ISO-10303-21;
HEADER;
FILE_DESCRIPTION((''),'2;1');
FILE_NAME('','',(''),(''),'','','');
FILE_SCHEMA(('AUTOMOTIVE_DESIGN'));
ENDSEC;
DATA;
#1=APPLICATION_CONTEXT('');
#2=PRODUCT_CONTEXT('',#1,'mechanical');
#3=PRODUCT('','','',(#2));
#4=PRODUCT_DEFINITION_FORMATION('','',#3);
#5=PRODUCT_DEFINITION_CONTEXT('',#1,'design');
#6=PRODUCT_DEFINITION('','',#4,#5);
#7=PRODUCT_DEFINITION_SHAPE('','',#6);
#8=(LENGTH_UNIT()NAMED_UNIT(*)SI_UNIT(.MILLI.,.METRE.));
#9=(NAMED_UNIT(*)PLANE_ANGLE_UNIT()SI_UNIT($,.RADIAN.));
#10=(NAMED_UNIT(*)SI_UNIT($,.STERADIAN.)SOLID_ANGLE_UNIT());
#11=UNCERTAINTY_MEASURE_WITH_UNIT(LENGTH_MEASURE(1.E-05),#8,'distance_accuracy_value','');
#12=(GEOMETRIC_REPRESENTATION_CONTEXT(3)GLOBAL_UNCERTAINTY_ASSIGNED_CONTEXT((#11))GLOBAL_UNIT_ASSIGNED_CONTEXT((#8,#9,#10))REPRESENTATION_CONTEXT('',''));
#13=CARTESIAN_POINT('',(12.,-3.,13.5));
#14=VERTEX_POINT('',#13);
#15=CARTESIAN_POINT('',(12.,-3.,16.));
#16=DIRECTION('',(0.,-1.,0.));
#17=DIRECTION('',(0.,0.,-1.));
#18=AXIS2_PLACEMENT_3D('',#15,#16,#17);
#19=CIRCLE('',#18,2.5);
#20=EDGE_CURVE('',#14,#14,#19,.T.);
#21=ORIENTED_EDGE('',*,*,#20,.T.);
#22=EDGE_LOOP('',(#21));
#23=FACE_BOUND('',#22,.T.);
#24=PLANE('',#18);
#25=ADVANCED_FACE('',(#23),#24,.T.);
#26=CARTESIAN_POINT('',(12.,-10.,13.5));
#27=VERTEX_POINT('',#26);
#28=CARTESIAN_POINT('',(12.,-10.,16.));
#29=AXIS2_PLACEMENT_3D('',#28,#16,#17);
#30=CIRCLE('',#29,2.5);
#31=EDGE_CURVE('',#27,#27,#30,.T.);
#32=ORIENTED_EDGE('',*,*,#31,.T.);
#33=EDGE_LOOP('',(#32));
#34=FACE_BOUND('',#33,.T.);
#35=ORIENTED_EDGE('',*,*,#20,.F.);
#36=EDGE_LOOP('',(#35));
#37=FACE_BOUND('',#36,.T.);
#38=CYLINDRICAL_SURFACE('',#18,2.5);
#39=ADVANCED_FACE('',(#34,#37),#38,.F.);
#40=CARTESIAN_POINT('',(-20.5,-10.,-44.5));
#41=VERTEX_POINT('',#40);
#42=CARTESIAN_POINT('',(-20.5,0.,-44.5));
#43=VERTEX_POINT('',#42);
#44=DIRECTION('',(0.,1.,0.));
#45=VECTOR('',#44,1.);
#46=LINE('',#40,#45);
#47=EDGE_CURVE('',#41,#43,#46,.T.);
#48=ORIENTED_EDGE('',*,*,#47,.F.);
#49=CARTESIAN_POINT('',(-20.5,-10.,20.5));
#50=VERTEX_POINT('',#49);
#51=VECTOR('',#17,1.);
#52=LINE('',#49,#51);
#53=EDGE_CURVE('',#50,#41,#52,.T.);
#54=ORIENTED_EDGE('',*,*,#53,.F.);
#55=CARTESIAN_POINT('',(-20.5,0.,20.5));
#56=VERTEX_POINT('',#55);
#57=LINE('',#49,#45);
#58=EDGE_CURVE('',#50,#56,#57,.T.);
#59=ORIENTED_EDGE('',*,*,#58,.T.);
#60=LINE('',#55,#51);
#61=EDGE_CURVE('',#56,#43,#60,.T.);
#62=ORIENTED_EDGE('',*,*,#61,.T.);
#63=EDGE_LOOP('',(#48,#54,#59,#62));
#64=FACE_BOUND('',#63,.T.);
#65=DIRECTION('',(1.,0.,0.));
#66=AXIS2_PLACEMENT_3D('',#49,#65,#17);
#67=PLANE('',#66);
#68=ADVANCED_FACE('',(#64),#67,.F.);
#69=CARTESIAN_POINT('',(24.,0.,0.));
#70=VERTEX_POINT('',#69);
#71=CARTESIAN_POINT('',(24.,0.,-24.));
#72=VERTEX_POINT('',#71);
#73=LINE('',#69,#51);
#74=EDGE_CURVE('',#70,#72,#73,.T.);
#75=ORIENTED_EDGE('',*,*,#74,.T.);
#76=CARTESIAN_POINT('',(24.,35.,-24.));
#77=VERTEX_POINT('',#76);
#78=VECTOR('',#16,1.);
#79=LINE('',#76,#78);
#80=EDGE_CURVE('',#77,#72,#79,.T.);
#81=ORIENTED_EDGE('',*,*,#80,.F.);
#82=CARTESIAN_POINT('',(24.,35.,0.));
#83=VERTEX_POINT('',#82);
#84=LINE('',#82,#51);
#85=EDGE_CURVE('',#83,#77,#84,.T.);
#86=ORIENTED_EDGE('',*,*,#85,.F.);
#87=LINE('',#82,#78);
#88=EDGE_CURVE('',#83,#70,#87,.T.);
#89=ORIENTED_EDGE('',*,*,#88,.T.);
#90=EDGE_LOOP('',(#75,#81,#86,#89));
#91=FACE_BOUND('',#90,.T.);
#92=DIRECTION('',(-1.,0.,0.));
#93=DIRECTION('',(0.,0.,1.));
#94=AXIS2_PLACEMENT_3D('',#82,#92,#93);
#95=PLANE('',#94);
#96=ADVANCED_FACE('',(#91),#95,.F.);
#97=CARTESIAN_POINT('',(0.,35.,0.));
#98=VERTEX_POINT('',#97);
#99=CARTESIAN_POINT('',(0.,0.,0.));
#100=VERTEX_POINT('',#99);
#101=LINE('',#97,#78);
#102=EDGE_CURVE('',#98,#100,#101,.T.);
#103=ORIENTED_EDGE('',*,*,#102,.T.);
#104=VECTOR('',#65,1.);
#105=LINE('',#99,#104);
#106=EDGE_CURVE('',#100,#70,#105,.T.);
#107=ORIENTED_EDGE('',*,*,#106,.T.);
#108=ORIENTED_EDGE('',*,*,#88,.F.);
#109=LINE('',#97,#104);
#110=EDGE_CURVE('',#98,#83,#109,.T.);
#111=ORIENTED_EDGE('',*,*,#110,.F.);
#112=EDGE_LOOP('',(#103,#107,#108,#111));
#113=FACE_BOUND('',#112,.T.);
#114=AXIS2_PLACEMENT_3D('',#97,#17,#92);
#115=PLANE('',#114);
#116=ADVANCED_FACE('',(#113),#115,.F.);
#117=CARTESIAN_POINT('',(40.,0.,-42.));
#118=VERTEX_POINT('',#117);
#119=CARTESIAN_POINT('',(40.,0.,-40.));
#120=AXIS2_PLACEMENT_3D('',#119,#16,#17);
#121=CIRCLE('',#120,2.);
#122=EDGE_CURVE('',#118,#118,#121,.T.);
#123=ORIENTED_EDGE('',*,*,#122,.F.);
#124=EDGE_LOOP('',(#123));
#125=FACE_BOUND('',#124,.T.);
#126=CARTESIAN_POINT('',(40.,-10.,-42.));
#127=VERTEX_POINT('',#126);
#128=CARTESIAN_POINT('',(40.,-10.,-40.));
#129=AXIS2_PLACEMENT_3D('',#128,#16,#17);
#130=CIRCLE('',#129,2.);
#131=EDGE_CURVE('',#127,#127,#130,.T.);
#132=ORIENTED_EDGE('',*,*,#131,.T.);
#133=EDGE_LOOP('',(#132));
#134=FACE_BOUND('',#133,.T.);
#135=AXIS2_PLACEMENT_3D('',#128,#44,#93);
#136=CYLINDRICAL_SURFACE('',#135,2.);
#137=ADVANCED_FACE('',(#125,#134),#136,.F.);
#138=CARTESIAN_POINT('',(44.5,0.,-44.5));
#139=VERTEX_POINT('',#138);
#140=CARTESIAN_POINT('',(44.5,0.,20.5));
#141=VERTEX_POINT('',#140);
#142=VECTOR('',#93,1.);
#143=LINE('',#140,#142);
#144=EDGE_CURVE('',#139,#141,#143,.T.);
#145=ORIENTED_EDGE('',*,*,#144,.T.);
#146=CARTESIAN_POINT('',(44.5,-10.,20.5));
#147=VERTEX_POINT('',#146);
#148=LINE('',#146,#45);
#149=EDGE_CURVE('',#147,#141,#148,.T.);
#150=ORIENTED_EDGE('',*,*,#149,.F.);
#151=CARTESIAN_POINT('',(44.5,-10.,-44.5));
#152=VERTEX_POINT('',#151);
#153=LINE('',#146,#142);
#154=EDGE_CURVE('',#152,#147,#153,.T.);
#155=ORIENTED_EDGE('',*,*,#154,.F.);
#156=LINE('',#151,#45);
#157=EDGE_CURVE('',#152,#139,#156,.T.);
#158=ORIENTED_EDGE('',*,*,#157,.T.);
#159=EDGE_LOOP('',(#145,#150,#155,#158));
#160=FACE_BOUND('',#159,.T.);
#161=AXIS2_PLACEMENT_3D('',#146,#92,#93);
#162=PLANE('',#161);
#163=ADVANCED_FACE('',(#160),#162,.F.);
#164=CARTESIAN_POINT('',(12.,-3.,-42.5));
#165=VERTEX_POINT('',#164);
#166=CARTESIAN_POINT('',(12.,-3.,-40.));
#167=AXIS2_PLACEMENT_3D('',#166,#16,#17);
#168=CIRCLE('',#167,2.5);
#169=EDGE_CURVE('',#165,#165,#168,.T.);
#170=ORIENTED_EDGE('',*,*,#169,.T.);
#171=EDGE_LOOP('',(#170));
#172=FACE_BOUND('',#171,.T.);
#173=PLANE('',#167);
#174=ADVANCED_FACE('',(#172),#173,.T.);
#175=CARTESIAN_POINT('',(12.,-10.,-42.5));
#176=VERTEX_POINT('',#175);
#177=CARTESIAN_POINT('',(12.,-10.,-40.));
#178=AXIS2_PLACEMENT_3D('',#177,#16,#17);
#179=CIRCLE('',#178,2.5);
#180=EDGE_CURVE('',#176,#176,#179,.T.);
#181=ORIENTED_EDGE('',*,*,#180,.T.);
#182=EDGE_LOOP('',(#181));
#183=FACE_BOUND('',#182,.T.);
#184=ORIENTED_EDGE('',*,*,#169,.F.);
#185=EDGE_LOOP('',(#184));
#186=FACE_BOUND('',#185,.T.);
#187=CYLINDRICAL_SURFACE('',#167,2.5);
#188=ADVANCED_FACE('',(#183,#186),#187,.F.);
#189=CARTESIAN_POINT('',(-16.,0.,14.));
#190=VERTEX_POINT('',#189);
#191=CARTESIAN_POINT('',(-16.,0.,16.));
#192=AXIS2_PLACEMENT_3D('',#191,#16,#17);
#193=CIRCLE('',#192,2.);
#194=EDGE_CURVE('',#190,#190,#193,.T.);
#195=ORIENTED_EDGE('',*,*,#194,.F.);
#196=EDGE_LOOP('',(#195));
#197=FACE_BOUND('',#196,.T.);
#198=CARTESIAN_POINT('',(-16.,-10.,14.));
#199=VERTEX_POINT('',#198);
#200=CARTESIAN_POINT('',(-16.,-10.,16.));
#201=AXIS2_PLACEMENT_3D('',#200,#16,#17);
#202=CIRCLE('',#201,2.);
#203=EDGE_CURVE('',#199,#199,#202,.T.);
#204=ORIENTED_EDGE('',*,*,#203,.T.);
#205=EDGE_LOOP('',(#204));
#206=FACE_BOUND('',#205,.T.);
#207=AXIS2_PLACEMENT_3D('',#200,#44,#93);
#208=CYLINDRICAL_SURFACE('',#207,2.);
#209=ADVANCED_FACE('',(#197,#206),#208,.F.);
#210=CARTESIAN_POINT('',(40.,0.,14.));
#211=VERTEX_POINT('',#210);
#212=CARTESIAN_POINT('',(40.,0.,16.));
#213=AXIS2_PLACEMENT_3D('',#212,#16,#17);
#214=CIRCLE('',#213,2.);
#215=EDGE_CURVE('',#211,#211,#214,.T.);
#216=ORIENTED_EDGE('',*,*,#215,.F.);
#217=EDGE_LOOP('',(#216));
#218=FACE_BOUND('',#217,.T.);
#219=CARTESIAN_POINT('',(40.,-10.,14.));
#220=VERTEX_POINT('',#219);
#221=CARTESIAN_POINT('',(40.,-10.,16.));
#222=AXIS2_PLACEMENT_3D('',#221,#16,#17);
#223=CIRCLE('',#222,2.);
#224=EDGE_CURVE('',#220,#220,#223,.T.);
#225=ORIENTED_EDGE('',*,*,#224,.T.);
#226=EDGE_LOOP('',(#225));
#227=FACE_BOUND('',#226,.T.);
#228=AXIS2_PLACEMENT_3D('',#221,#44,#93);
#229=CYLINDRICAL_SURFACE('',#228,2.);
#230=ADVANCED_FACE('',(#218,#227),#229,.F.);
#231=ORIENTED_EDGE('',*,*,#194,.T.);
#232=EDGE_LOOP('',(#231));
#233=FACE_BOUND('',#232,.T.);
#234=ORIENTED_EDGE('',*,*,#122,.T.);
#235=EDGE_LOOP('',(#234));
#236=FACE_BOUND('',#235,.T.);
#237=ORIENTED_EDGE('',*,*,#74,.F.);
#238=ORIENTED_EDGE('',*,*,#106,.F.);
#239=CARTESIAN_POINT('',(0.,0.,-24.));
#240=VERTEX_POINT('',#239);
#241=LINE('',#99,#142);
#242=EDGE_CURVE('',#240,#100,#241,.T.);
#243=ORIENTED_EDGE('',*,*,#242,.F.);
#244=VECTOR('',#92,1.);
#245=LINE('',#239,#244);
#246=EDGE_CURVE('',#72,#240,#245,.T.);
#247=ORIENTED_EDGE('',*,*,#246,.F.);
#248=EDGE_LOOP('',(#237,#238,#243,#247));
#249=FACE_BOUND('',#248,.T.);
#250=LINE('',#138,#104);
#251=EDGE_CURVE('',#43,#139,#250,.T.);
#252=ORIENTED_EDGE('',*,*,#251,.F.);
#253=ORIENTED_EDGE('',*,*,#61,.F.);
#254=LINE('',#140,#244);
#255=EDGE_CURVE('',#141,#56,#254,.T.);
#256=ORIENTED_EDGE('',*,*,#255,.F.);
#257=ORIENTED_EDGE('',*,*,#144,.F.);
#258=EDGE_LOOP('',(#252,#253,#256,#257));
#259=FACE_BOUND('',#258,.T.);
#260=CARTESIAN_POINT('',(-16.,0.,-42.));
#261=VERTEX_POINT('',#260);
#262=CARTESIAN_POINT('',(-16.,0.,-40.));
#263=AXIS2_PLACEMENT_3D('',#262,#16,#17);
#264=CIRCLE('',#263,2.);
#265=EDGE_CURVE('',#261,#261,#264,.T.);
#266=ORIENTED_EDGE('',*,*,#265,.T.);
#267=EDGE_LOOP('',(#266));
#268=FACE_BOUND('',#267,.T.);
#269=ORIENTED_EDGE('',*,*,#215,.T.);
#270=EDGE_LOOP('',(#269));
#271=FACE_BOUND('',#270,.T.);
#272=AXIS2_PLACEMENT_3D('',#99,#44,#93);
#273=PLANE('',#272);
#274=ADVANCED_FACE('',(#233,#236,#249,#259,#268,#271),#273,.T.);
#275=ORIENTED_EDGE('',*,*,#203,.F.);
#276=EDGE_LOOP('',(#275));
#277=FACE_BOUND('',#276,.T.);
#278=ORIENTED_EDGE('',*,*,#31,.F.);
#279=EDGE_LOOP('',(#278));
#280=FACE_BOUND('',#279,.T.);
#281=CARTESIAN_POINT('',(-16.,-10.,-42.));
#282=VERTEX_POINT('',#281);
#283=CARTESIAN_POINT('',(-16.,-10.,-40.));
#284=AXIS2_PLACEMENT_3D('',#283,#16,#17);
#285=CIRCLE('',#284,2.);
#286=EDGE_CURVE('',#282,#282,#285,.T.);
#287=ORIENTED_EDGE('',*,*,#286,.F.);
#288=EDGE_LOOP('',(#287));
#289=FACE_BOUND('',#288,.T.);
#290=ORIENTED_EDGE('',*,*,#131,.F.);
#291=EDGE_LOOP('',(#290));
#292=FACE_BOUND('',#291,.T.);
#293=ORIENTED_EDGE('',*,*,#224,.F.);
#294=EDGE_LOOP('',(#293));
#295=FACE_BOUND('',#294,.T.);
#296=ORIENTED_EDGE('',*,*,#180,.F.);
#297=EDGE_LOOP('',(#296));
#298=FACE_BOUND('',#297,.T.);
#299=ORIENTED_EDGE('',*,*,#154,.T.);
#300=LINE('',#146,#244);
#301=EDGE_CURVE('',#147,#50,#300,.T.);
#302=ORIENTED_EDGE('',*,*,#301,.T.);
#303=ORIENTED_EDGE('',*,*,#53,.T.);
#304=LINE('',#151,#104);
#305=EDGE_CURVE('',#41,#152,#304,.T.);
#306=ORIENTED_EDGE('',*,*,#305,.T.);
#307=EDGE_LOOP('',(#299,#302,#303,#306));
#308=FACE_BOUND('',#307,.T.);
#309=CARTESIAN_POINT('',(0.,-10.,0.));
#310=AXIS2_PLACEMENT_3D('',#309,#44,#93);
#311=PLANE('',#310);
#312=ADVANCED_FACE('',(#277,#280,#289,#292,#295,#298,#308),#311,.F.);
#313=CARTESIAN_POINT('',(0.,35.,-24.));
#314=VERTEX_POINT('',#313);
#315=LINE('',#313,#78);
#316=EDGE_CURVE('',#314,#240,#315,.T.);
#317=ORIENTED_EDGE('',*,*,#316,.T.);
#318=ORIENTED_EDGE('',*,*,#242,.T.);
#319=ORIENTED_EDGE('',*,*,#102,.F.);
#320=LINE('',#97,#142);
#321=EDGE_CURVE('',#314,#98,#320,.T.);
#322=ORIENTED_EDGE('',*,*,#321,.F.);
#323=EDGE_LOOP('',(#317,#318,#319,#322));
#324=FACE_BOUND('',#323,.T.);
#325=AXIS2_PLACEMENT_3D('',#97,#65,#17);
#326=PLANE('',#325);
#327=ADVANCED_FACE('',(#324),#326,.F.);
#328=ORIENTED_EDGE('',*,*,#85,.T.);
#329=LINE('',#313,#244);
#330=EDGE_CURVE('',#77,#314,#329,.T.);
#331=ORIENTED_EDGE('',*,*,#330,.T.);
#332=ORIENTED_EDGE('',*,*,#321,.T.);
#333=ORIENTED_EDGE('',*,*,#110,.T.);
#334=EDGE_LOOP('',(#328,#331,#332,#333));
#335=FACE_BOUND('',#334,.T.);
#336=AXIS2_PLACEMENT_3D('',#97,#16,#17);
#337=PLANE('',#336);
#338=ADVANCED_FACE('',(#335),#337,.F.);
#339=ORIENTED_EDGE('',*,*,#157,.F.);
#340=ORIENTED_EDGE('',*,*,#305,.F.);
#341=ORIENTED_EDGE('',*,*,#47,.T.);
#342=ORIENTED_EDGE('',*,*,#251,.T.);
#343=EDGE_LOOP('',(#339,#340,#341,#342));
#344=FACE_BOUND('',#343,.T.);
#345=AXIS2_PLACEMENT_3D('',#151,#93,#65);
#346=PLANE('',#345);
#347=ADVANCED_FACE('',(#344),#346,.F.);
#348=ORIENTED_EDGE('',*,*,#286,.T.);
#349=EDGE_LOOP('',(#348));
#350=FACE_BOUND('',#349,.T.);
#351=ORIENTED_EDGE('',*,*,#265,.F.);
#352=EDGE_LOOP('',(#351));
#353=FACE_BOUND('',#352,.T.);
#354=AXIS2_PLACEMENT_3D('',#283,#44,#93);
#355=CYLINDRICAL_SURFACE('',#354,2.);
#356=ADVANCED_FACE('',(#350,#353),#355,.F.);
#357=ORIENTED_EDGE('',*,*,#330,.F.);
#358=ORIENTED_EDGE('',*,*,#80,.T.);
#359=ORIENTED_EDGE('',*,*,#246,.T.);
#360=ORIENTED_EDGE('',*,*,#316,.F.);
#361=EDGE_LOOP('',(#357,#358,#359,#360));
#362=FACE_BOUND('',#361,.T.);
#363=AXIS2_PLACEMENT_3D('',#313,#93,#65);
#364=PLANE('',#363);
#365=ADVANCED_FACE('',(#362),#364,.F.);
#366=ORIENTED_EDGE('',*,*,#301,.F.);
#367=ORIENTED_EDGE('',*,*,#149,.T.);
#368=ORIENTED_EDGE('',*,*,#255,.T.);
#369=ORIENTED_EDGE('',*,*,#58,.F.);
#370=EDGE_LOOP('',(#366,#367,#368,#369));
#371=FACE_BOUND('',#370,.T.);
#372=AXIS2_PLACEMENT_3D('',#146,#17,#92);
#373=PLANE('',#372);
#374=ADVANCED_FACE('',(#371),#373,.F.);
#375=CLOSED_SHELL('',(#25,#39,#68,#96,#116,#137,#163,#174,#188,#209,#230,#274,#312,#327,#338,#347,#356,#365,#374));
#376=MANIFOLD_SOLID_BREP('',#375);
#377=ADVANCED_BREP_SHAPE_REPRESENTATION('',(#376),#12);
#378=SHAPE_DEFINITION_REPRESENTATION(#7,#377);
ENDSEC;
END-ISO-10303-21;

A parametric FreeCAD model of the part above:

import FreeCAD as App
import Part
import Sketcher

V = App.Vector

doc = App.newDocument("Part")
body = doc.addObject("PartDesign::Body", "Body")

# Sketch on XZ plane
sketch1 = doc.addObject("Sketcher::SketchObject", "Sketch")
body.addObject(sketch1)
sketch1.AttachmentSupport = (doc.XZ_Plane, [""])
sketch1.MapMode = "FlatFace"
sketch1.addGeometry([
    Part.LineSegment(V(0, -24, 0), V(0, 0, 0)),
    Part.LineSegment(V(0, 0, 0), V(24, 0, 0)),
    Part.LineSegment(V(24, 0, 0), V(24, -24, 0)),
    Part.LineSegment(V(24, -24, 0), V(0, -24, 0)),
], False)
sketch1.addConstraint([
    Sketcher.Constraint("Coincident", 0, 2, 1, 1),
    Sketcher.Constraint("Coincident", 1, 2, 2, 1),
    Sketcher.Constraint("Coincident", 2, 2, 3, 1),
    Sketcher.Constraint("Coincident", 3, 2, 0, 1),
    Sketcher.Constraint("Vertical", 0),
    Sketcher.Constraint("Horizontal", 1),
    Sketcher.Constraint("Vertical", 2),
    Sketcher.Constraint("Horizontal", 3),
    Sketcher.Constraint("Coincident", 0, 2, -1, 1),
    Sketcher.Constraint("Equal", 3, 0),
    Sketcher.Constraint("DistanceX", 1, 1, 1, 2, 24.0),
])
pad1 = doc.addObject("PartDesign::Pad", "Pad")
body.addObject(pad1)
pad1.Profile = sketch1
pad1.Length = 35
pad1.Reversed = True

# Sketch on XZ plane
sketch2 = doc.addObject("Sketcher::SketchObject", "Sketch001")
body.addObject(sketch2)
sketch2.AttachmentSupport = (doc.XZ_Plane, [""])
sketch2.MapMode = "FlatFace"
sketch2.addGeometry([
    Part.LineSegment(V(-20.5, 20.5, 0), V(-20.5, -44.5, 0)),  # 0
    Part.LineSegment(V(-20.5, -44.5, 0), V(44.5, -44.5, 0)),  # 1
    Part.LineSegment(V(44.5, -44.5, 0), V(44.5, 20.5, 0)),  # 2
    Part.LineSegment(V(44.5, 20.5, 0), V(-20.5, 20.5, 0)),  # 3
    Part.Circle(V(-16, -40, 0), V(0, 0, 1), 2),  # 4
    Part.Circle(V(40, -40, 0), V(0, 0, 1), 2),  # 5
    Part.Circle(V(-16, 16, 0), V(0, 0, 1), 2),  # 6
    Part.Circle(V(40, 16, 0), V(0, 0, 1), 2),  # 7
], False)
sketch2.addConstraint([
    Sketcher.Constraint("Coincident", 0, 2, 1, 1),
    Sketcher.Constraint("Coincident", 1, 2, 2, 1),
    Sketcher.Constraint("Coincident", 2, 2, 3, 1),
    Sketcher.Constraint("Coincident", 3, 2, 0, 1),
    Sketcher.Constraint("Vertical", 0),
    Sketcher.Constraint("Horizontal", 1),
    Sketcher.Constraint("Vertical", 2),
    Sketcher.Constraint("Horizontal", 3),
    Sketcher.Constraint("Equal", 4, 5),
    Sketcher.Constraint("Equal", 5, 6),
    Sketcher.Constraint("Equal", 6, 7),
    Sketcher.Constraint("Horizontal", 4, 3, 5, 3),
    Sketcher.Constraint("Horizontal", 6, 3, 7, 3),
    Sketcher.Constraint("Vertical", 4, 3, 6, 3),
    Sketcher.Constraint("Vertical", 5, 3, 7, 3),
    Sketcher.Constraint("Equal", 3, 0),
    Sketcher.Constraint("Diameter", 4, 4.0),
    Sketcher.Constraint("DistanceX", 1, 1, 1, 2, 65.0),
    Sketcher.Constraint("DistanceX", 4, 3, -1, 1, 16.0),
    Sketcher.Constraint("DistanceY", 4, 3, -1, 1, 40.0),
    Sketcher.Constraint("DistanceX", -1, 1, 5, 3, 40.0),
    Sketcher.Constraint("DistanceY", -1, 1, 6, 3, 16.0),
    Sketcher.Constraint("DistanceX", 0, 2, -1, 1, 20.5),
    Sketcher.Constraint("DistanceY", 0, 2, -1, 1, 44.5),
])
pad2 = doc.addObject("PartDesign::Pad", "Pad001")
body.addObject(pad2)
pad2.Profile = sketch2
pad2.Length = 10

# Sketch on XZ plane
sketch3 = doc.addObject("Sketcher::SketchObject", "Sketch002")
body.addObject(sketch3)
sketch3.AttachmentSupport = (doc.XZ_Plane, [""])
sketch3.MapMode = "FlatFace"
sketch3.AttachmentOffset = App.Placement(V(0, 0, 10), App.Rotation())
sketch3.addGeometry([
    Part.Circle(V(12, 16, 0), V(0, 0, 1), 2.5),
    Part.Circle(V(12, -40, 0), V(0, 0, 1), 2.5),
], False)
sketch3.addConstraint([
    Sketcher.Constraint("Equal", 0, 1),
    Sketcher.Constraint("Vertical", 0, 3, 1, 3),
    Sketcher.Constraint("Diameter", 0, 5.0),
    Sketcher.Constraint("DistanceX", -1, 1, 0, 3, 12.0),
    Sketcher.Constraint("DistanceY", -1, 1, 0, 3, 16.0),
    Sketcher.Constraint("DistanceY", 1, 3, -1, 1, 40.0),
])
pocket1 = doc.addObject("PartDesign::Pocket", "Pocket")
body.addObject(pocket1)
pocket1.Profile = sketch3
pocket1.Length = 7

doc.recompute()
